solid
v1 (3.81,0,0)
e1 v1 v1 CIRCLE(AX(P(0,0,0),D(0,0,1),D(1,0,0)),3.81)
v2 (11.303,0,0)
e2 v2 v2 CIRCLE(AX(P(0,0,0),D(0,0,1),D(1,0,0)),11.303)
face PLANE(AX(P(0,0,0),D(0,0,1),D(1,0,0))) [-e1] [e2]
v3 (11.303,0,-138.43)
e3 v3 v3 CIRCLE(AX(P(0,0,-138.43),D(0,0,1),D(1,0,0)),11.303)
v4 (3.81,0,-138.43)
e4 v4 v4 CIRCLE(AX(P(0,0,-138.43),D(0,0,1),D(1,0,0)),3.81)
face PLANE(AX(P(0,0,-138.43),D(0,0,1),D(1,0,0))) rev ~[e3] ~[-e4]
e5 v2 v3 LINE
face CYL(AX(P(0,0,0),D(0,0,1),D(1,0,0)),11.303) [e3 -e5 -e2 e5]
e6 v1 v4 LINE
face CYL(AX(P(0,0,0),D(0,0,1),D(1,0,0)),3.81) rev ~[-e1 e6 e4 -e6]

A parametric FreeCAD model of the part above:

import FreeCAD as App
import Part
import Sketcher
Q = App.Units.Quantity

doc = App.newDocument("Part")
params = doc.addObject("Spreadsheet::Sheet", "Params")
for row, (alias, value) in enumerate([
    ("sketch1_diameter", "0.3 in"),
    ("sketch1_diameter2", "0.89 in"),
    ("pad1_length", "5.45 in"),
], start=1):
    params.set(f"A{row}", alias)
    params.set(f"B{row}", "=" + value)
    params.setAlias(f"B{row}", alias)

body = doc.addObject("PartDesign::Body", "Body")

sketch1 = body.newObject("Sketcher::SketchObject", "Sketch")
sketch1.AttachmentSupport = (doc.getObject("XY_Plane"), [""])
sketch1.MapMode = "FlatFace"
sketch1.addGeometry([
    Part.Circle(App.Vector(0, 0, 0), App.Vector(0, 0, 1), 11.3),
    Part.Circle(App.Vector(0, 0, 0), App.Vector(0, 0, 1), 3.8),
], False)
sketch1.addConstraint([
    Sketcher.Constraint("Coincident", 0, 3, -1, 1),
    Sketcher.Constraint("Coincident", 1, 3, -1, 1),
    Sketcher.Constraint("Diameter", 1, Q("0.3 in")),
    Sketcher.Constraint("Diameter", 0, Q("0.89 in")),
])
sketch1.setExpression("Constraints[2]", "Params.sketch1_diameter")
sketch1.setExpression("Constraints[3]", "Params.sketch1_diameter2")
pad1 = body.newObject("PartDesign::Pad", "Pad")
pad1.Profile = sketch1
pad1.setExpression("Length", "Params.pad1_length")
pad1.Reversed = True

doc.recompute()
